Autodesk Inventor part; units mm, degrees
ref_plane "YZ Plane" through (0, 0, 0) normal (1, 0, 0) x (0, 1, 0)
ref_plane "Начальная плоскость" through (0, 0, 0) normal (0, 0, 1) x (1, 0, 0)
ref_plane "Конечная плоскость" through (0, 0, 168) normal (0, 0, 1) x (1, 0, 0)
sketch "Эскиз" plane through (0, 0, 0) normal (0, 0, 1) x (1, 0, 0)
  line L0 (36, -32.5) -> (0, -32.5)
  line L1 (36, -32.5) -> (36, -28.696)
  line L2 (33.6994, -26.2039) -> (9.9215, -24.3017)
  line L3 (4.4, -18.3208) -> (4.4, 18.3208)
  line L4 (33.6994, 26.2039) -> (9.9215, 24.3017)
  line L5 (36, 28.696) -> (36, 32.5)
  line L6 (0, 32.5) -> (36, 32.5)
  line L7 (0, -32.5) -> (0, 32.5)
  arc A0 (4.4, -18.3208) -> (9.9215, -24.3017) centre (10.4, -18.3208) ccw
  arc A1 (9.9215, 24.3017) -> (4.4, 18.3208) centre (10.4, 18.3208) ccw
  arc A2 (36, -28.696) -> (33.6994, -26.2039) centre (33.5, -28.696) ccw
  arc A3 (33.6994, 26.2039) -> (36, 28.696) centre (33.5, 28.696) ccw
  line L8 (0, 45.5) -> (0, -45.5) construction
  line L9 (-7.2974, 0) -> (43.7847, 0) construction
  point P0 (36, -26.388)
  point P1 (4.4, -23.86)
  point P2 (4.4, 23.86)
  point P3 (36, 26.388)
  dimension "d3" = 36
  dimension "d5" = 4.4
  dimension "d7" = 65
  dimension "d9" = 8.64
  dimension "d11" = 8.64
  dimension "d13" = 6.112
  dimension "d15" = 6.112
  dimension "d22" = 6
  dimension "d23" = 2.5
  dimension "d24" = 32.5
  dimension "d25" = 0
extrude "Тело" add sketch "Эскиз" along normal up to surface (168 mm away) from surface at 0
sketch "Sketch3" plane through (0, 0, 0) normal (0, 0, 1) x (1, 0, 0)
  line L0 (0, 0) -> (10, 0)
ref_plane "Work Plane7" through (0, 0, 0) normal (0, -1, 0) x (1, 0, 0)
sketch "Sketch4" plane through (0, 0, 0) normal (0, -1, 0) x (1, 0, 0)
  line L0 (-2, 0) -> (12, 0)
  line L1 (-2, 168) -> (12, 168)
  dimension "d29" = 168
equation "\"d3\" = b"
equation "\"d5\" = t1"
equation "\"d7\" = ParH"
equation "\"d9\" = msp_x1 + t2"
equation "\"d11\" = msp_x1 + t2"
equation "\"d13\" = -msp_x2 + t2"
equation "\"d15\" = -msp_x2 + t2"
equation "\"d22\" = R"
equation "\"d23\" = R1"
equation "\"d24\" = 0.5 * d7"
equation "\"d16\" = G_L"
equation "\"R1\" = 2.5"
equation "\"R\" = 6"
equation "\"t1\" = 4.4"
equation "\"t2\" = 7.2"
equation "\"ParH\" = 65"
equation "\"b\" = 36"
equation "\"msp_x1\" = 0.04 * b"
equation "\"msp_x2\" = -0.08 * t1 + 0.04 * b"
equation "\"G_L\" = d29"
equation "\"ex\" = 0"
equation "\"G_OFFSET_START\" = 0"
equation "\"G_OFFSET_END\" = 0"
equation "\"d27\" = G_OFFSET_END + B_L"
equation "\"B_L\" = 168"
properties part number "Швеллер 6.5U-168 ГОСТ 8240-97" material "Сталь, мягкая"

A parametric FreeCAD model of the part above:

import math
import FreeCAD as App
import Part
import Sketcher
from FreeCAD import Vector
Q = App.Units.Quantity

doc = App.newDocument("Part")
body = doc.addObject("PartDesign::Body", "Body")

sketch1 = body.newObject("Sketcher::SketchObject", "Sketch")
sketch1.AttachmentSupport = (doc.getObject("XY_Plane"), [""])
sketch1.MapMode = "FlatFace"
sketch1.addGeometry([
    Part.LineSegment(Vector(0, -32.5, 0), Vector(36, -32.5, 0)),
    Part.LineSegment(Vector(36, -32.5, 0), Vector(36, -28.7, 0)),
    Part.ArcOfCircle(Part.Circle(Vector(33.5, -28.7, 0), Vector(0, 0, 1), 2.5), math.radians(0), math.radians(85)),
    Part.LineSegment(Vector(33.7, -26.2, 0), Vector(9.9, -24.3, 0)),
    Part.ArcOfCircle(Part.Circle(Vector(10.4, -18.3, 0), Vector(0, 0, 1), 6), math.radians(180), math.radians(265)),
    Part.LineSegment(Vector(4.4, -18.3, 0), Vector(4.4, 18.3, 0)),
    Part.ArcOfCircle(Part.Circle(Vector(10.4, 18.3, 0), Vector(0, 0, 1), 6), math.radians(95), math.radians(180)),
    Part.LineSegment(Vector(9.9, 24.3, 0), Vector(33.7, 26.2, 0)),
    Part.ArcOfCircle(Part.Circle(Vector(33.5, 28.7, 0), Vector(0, 0, 1), 2.5), math.radians(-85), math.radians(0)),
    Part.LineSegment(Vector(36, 28.7, 0), Vector(36, 32.5, 0)),
    Part.LineSegment(Vector(36, 32.5, 0), Vector(0, 32.5, 0)),
    Part.LineSegment(Vector(0, 32.5, 0), Vector(0, -32.5, 0)),
], False)
sketch1.addConstraint([
    Sketcher.Constraint("Coincident", 0, 2, 1, 1),
    Sketcher.Constraint("Tangent", 1, 2, 2, 1),
    Sketcher.Constraint("Tangent", 2, 2, 3, 1),
    Sketcher.Constraint("Tangent", 3, 2, 4, 2),
    Sketcher.Constraint("Tangent", 4, 1, 5, 1),
    Sketcher.Constraint("Tangent", 5, 2, 6, 2),
    Sketcher.Constraint("Tangent", 6, 1, 7, 1),
    Sketcher.Constraint("Tangent", 7, 2, 8, 1),
    Sketcher.Constraint("Tangent", 8, 2, 9, 1),
    Sketcher.Constraint("Coincident", 9, 2, 10, 1),
    Sketcher.Constraint("Coincident", 10, 2, 11, 1),
    Sketcher.Constraint("Coincident", 11, 2, 0, 1),
    Sketcher.Constraint("Horizontal", 0),
    Sketcher.Constraint("Vertical", 1),
    Sketcher.Constraint("Vertical", 5),
    Sketcher.Constraint("Vertical", 9),
    Sketcher.Constraint("Horizontal", 10),
    Sketcher.Constraint("Vertical", 11),
    Sketcher.Constraint("Equal", 4, 6),
    Sketcher.Constraint("Equal", 2, 8),
    Sketcher.Constraint("Symmetric", 10, 2, 11, 2, -1, 1),
    Sketcher.Constraint("Symmetric", 2, 3, 8, 3, -1),
    Sketcher.Constraint("Vertical", 3, 2, 6, 1),
    Sketcher.Constraint("Radius", 4, Q("6 mm")),
    Sketcher.Constraint("Radius", 2, Q("2.5 mm")),
    Sketcher.Constraint("DistanceX", 0, 1, 0, 2, Q("36 mm")),
    Sketcher.Constraint("DistanceY", 11, 2, 11, 1, Q("65 mm")),
    Sketcher.Constraint("DistanceX", -1, 1, 4, 1, Q("4.4 mm")),
    Sketcher.Constraint("DistanceY", 1, 1, 1, 2, Q("3.804 mm")),
    Sketcher.Constraint("DistanceY", 5, 1, 5, 2, Q("36.6416 mm")),
])
pad1 = body.newObject("PartDesign::Pad", "Pad")
pad1.Profile = sketch1
pad1.Length = 168

doc.recompute()
